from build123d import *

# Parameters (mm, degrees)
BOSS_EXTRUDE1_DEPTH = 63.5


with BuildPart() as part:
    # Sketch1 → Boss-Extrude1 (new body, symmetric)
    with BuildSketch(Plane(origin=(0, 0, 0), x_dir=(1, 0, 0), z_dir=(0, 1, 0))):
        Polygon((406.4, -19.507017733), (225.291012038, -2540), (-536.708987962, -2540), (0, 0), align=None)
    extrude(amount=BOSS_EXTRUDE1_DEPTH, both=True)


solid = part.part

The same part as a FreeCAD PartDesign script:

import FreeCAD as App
import Part
import Sketcher

V = App.Vector
Q = App.Units.Quantity

doc = App.newDocument("Part")
body = doc.addObject("PartDesign::Body", "Body")

# Sketch on XZ plane
sketch1 = doc.addObject("Sketcher::SketchObject", "Sketch")
body.addObject(sketch1)
sketch1.AttachmentSupport = (doc.XZ_Plane, [""])
sketch1.MapMode = "FlatFace"
sketch1.addGeometry([
    Part.LineSegment(V(225, 2540, 0), V(406, 20, 0)),
    Part.LineSegment(V(406, 20, 0), V(0, 0, 0)),
    Part.LineSegment(V(0, 0, 0), V(-537, 2540, 0)),
    Part.LineSegment(V(-537, 2540, 0), V(225, 2540, 0)),
], False)
sketch1.addConstraint([
    Sketcher.Constraint("Coincident", 0, 2, 1, 1),
    Sketcher.Constraint("Coincident", 1, 2, 2, 1),
    Sketcher.Constraint("Coincident", 2, 2, 3, 1),
    Sketcher.Constraint("Coincident", 3, 2, 0, 1),
    Sketcher.Constraint("Horizontal", 3),
    Sketcher.Constraint("Coincident", 1, 2, -1, 1),
    Sketcher.Constraint("DistanceX", 3, 1, 3, 2, Q("30 in")),
    Sketcher.Constraint("DistanceX", -1, 1, 0, 2, Q("16 in")),
    Sketcher.Constraint("DistanceY", -1, 1, 2, 2, Q("100 in")),
    Sketcher.Constraint("Distance", 0, Q("2526.991361 mm")),
    Sketcher.Constraint("Distance", 2, Q("2596.084848 mm")),
])
pad1 = doc.addObject("PartDesign::Pad", "Pad")
body.addObject(pad1)
pad1.Profile = sketch1
pad1.Length = Q("5 in")
pad1.Midplane = True

doc.recompute()
